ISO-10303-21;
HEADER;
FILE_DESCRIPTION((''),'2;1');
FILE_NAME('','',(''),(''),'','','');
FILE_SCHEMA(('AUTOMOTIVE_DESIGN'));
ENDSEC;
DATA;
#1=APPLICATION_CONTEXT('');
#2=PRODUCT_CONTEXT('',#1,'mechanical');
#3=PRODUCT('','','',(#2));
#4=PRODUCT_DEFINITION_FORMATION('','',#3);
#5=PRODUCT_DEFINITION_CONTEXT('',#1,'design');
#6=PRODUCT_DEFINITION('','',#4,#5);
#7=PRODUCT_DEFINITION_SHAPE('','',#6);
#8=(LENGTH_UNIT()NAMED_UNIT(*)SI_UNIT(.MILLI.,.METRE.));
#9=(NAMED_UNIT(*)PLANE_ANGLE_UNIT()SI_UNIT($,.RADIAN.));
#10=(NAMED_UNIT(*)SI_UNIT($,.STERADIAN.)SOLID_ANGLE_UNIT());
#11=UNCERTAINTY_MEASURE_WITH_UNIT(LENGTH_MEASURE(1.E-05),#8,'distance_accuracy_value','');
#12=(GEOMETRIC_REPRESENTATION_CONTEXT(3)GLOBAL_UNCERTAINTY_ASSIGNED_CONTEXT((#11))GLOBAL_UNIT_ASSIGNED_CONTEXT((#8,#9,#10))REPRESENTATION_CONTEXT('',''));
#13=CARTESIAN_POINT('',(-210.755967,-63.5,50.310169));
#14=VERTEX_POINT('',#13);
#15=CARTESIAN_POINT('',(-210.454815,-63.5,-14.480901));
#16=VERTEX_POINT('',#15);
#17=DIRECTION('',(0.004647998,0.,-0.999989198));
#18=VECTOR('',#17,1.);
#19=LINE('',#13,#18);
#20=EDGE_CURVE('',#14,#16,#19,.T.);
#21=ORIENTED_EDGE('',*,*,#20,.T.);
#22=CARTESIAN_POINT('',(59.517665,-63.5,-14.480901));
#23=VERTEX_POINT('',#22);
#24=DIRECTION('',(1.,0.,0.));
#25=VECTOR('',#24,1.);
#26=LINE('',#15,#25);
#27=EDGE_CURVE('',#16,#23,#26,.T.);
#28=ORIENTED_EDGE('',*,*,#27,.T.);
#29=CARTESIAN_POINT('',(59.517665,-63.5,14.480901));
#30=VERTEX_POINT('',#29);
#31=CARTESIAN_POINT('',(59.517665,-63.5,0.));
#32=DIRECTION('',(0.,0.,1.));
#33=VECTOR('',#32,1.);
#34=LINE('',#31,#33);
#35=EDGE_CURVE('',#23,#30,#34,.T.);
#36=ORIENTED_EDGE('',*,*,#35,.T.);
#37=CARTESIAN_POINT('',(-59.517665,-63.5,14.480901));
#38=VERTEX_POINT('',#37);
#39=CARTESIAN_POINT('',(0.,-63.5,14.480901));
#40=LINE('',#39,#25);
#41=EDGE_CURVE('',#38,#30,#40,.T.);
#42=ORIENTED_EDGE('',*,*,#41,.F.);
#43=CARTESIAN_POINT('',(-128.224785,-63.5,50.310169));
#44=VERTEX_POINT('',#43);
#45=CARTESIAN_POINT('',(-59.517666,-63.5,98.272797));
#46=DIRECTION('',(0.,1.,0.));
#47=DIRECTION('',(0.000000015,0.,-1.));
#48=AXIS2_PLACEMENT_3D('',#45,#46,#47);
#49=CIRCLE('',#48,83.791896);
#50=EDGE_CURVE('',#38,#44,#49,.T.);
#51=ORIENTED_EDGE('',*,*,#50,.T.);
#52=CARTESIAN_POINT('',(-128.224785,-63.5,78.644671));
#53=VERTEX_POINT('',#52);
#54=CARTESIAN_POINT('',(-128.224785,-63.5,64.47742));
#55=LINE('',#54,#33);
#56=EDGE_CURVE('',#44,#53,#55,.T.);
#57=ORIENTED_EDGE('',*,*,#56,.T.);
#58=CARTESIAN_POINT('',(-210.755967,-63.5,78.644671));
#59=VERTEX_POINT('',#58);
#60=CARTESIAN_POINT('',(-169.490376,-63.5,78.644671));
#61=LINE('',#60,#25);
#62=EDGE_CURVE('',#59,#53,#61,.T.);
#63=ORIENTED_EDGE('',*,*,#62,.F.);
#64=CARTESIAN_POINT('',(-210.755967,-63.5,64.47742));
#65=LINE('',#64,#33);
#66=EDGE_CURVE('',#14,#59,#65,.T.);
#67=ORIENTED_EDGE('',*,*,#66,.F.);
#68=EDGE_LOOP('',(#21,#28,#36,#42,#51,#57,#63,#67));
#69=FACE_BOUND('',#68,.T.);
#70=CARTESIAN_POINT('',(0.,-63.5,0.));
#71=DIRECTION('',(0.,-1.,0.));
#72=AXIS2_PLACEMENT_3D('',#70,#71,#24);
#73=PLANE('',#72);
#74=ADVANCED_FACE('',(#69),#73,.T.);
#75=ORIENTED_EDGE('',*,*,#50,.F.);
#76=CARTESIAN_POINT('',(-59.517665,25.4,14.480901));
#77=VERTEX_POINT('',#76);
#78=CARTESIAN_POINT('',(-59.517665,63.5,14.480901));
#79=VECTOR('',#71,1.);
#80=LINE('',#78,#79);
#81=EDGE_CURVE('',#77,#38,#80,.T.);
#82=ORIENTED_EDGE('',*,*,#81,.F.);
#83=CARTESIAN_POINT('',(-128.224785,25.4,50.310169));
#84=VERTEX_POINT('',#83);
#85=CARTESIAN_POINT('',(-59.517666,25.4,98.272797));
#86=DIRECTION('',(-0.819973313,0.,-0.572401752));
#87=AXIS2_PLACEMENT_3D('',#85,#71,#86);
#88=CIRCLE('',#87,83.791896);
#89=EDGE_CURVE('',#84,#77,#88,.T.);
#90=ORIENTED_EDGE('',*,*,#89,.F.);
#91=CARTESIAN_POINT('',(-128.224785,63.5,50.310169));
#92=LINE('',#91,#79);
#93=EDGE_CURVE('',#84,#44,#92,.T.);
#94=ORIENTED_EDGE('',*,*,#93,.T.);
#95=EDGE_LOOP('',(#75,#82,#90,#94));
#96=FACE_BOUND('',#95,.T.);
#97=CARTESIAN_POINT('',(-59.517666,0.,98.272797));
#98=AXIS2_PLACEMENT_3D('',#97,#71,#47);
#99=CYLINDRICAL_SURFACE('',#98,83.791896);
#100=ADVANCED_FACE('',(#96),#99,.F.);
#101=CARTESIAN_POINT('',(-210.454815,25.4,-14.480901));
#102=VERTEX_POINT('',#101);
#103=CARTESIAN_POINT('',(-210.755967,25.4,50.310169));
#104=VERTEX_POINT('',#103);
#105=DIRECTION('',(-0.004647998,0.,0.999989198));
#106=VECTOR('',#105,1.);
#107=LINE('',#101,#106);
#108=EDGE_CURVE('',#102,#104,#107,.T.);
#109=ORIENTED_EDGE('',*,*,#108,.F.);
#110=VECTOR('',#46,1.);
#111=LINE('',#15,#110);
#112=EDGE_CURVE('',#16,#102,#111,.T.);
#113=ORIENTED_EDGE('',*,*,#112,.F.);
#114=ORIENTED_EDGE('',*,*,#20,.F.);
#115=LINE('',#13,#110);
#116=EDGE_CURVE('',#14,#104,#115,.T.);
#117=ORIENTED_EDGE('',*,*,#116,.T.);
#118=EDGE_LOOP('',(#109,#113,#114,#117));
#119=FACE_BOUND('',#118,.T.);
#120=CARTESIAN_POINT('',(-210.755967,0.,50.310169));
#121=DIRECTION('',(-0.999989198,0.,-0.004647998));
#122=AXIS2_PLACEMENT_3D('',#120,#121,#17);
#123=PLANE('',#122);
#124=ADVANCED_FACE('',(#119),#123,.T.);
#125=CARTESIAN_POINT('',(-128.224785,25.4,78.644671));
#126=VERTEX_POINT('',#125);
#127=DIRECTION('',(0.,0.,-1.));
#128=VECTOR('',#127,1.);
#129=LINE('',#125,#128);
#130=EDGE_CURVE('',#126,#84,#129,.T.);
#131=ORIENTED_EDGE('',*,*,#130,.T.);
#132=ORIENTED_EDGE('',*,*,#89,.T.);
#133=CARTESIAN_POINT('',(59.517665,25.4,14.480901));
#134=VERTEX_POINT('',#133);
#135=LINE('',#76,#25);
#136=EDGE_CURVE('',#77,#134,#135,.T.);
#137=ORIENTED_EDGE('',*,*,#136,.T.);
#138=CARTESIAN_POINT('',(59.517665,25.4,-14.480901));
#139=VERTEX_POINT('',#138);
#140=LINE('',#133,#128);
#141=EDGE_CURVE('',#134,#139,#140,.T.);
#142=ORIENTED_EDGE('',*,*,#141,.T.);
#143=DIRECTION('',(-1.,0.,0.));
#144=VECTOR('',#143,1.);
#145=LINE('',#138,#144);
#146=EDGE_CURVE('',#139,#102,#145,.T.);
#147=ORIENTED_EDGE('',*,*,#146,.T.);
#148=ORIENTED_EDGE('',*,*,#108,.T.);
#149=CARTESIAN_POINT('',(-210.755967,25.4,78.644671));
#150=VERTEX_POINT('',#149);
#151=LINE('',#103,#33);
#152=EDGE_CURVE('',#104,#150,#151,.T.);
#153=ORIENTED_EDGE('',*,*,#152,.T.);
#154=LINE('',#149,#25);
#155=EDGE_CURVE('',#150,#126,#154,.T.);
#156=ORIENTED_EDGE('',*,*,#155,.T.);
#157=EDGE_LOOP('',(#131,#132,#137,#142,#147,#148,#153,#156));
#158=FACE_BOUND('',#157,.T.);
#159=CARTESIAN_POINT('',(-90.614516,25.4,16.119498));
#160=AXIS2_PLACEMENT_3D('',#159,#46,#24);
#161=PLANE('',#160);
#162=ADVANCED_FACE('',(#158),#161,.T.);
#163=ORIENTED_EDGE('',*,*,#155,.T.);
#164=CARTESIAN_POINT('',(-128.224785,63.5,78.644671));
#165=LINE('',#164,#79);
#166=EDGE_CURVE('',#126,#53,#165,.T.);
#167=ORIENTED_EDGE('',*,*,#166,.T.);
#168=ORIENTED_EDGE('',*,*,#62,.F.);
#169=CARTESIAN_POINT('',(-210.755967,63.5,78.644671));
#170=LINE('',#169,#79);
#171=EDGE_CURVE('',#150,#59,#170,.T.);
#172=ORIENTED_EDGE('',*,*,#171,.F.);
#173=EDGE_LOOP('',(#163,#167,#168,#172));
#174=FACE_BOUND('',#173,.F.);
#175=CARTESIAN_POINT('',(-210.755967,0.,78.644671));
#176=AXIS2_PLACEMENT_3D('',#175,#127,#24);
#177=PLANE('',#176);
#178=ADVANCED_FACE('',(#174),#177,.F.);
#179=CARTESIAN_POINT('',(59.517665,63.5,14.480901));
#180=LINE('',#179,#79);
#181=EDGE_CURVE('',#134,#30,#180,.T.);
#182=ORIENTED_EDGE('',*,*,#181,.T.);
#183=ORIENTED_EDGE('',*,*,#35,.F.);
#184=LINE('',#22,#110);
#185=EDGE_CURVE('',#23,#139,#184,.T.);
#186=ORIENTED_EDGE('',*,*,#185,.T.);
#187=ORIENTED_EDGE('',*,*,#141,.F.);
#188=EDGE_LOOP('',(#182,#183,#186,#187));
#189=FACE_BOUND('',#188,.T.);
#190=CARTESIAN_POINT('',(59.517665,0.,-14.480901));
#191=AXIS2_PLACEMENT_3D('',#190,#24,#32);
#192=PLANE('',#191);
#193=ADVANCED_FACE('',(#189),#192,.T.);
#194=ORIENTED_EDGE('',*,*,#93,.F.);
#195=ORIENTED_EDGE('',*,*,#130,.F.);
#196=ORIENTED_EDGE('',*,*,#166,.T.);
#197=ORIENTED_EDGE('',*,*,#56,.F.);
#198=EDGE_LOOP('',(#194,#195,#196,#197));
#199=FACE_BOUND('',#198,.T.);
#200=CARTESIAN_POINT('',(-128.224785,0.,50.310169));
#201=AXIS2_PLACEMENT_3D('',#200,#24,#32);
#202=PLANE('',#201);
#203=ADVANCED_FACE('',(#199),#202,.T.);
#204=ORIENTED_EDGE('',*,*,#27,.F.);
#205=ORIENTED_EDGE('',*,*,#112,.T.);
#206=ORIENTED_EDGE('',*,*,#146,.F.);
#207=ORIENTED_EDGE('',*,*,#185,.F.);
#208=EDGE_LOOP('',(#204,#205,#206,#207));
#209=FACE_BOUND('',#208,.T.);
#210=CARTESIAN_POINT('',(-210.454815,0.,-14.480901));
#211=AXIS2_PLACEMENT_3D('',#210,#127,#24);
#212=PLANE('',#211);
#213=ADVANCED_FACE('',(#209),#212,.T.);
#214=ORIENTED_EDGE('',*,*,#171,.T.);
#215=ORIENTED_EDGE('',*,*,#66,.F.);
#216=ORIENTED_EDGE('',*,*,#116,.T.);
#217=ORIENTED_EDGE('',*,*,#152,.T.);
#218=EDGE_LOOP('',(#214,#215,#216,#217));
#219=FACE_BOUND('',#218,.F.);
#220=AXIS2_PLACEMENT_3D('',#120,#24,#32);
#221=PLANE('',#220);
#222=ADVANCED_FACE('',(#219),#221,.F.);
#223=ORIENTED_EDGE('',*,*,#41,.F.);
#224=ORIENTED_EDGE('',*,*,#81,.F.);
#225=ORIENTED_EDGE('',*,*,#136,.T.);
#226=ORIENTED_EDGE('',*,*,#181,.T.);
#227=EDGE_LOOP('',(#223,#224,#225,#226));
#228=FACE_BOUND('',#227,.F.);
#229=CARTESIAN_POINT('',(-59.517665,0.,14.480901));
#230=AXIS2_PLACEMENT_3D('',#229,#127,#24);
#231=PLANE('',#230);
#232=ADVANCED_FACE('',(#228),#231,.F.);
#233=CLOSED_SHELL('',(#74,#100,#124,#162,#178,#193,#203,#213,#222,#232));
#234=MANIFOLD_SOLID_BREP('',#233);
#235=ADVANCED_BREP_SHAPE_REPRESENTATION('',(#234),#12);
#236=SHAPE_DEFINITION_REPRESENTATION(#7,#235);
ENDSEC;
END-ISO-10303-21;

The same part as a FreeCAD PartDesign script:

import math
import FreeCAD as App
import Part
import Sketcher
from FreeCAD import Vector
Q = App.Units.Quantity

doc = App.newDocument("Part")
body = doc.addObject("PartDesign::Body", "Body")

# Sketch on XZ plane
sketch1 = doc.addObject("Sketcher::SketchObject", "Sketch")
body.addObject(sketch1)
sketch1.AttachmentSupport = (doc.XZ_Plane, [""])
sketch1.MapMode = "FlatFace"
sketch1.addGeometry(Part.LineSegment(Vector(60, -14, 0), Vector(60, 14, 0)), False)
sketch1.addGeometry(Part.LineSegment(Vector(60, 14, 0), Vector(-60, 14, 0)), False)
sketch1.addGeometry(Part.ArcOfCircle(Part.Circle(Vector(-60, 98, 0), Vector(0, 0, 1), 84), math.radians(-145), math.radians(-90)), False)
sketch1.addGeometry(Part.LineSegment(Vector(-128, 50, 0), Vector(-128, 79, 0)), False)
sketch1.addGeometry(Part.LineSegment(Vector(-128, 79, 0), Vector(-211, 79, 0)), False)
sketch1.addGeometry(Part.LineSegment(Vector(-211, 79, 0), Vector(-211, 50, 0)), False)
sketch1.addGeometry(Part.LineSegment(Vector(-211, 50, 0), Vector(-210, -14, 0)), False)
sketch1.addGeometry(Part.LineSegment(Vector(-210, -14, 0), Vector(60, -14, 0)), False)
sketch1.addConstraint(Sketcher.Constraint("Coincident", 0, 2, 1, 1))
sketch1.addConstraint(Sketcher.Constraint("Tangent", 1, 2, 2, 2))
sketch1.addConstraint(Sketcher.Constraint("Coincident", 2, 1, 3, 1))
sketch1.addConstraint(Sketcher.Constraint("Coincident", 3, 2, 4, 1))
sketch1.addConstraint(Sketcher.Constraint("Coincident", 4, 2, 5, 1))
sketch1.addConstraint(Sketcher.Constraint("Coincident", 5, 2, 6, 1))
sketch1.addConstraint(Sketcher.Constraint("Coincident", 6, 2, 7, 1))
sketch1.addConstraint(Sketcher.Constraint("Coincident", 7, 2, 0, 1))
sketch1.addConstraint(Sketcher.Constraint("Vertical", 0))
sketch1.addConstraint(Sketcher.Constraint("Horizontal", 1))
sketch1.addConstraint(Sketcher.Constraint("Vertical", 3))
sketch1.addConstraint(Sketcher.Constraint("Horizontal", 4))
sketch1.addConstraint(Sketcher.Constraint("Vertical", 5))
sketch1.addConstraint(Sketcher.Constraint("Horizontal", 7))
sketch1.addConstraint(Sketcher.Constraint("Symmetric", 1, 2, 7, 2, -1, 1))
sketch1.addConstraint(Sketcher.Constraint("Horizontal", 2, 1, 5, 2))
sketch1.addConstraint(Sketcher.Constraint("DistanceY", 0, 1, 0, 2, 28.961802))
sketch1.addConstraint(Sketcher.Constraint("Radius", 2, 83.791896))
sketch1.addConstraint(Sketcher.Constraint("DistanceX", 1, 2, 1, 1, 119.03533))
sketch1.addConstraint(Sketcher.Constraint("DistanceX", 4, 2, 4, 1, 82.531182))
sketch1.addConstraint(Sketcher.Constraint("DistanceX", 7, 1, 7, 2, 269.97248))
sketch1.addConstraint(Sketcher.Constraint("DistanceX", 4, 2, 2, 3, 151.238301))
sketch1.addConstraint(Sketcher.Constraint("DistanceY", 3, 1, 3, 2, 28.334502))
pad1 = doc.addObject("PartDesign::Pad", "Pad")
body.addObject(pad1)
pad1.Profile = sketch1
pad1.Length = Q("5 in")
pad1.Midplane = True

# Sketch on XZ plane
sketch2 = doc.addObject("Sketcher::SketchObject", "Sketch001")
body.addObject(sketch2)
sketch2.AttachmentSupport = (doc.XZ_Plane, [""])
sketch2.MapMode = "FlatFace"
sketch2.AttachmentOffset = App.Placement(Vector(0, 0, -2.5 * 25.4), App.Rotation())
sketch2.addGeometry(Part.LineSegment(Vector(60, 14, 0), Vector(60, -14, 0)), False)
sketch2.addGeometry(Part.LineSegment(Vector(60, -14, 0), Vector(-210, -14, 0)), False)
sketch2.addGeometry(Part.LineSegment(Vector(-210, -14, 0), Vector(-211, 50, 0)), False)
sketch2.addGeometry(Part.LineSegment(Vector(-211, 50, 0), Vector(-211, 79, 0)), False)
sketch2.addGeometry(Part.LineSegment(Vector(-211, 79, 0), Vector(-128, 79, 0)), False)
sketch2.addGeometry(Part.LineSegment(Vector(-128, 79, 0), Vector(-128, 50, 0)), False)
sketch2.addGeometry(Part.ArcOfCircle(Part.Circle(Vector(-60, 98, 0), Vector(0, 0, 1), 84), math.radians(-145), math.radians(-90)), False)
sketch2.addGeometry(Part.LineSegment(Vector(-60, 14, 0), Vector(60, 14, 0)), False)
sketch2.addConstraint(Sketcher.Constraint("Coincident", 0, 2, 1, 1))
sketch2.addConstraint(Sketcher.Constraint("Coincident", 1, 2, 2, 1))
sketch2.addConstraint(Sketcher.Constraint("Coincident", 2, 2, 3, 1))
sketch2.addConstraint(Sketcher.Constraint("Coincident", 3, 2, 4, 1))
sketch2.addConstraint(Sketcher.Constraint("Coincident", 4, 2, 5, 1))
sketch2.addConstraint(Sketcher.Constraint("Coincident", 5, 2, 6, 1))
sketch2.addConstraint(Sketcher.Constraint("Tangent", 6, 2, 7, 1))
sketch2.addConstraint(Sketcher.Constraint("Coincident", 7, 2, 0, 1))
sketch2.addConstraint(Sketcher.Constraint("Vertical", 0))
sketch2.addConstraint(Sketcher.Constraint("Horizontal", 1))
sketch2.addConstraint(Sketcher.Constraint("Vertical", 3))
sketch2.addConstraint(Sketcher.Constraint("Horizontal", 4))
sketch2.addConstraint(Sketcher.Constraint("Vertical", 5))
sketch2.addConstraint(Sketcher.Constraint("Horizontal", 7))
sketch2.addConstraint(Sketcher.Constraint("Symmetric", 0, 2, 6, 2, -1, 1))
sketch2.addConstraint(Sketcher.Constraint("Horizontal", 2, 2, 5, 2))
sketch2.addConstraint(Sketcher.Constraint("DistanceY", 0, 2, 0, 1, 28.961802))
sketch2.addConstraint(Sketcher.Constraint("Radius", 6, 83.791896))
sketch2.addConstraint(Sketcher.Constraint("DistanceX", 1, 2, 1, 1, 269.97248))
sketch2.addConstraint(Sketcher.Constraint("DistanceX", 4, 1, 4, 2, 82.531182))
sketch2.addConstraint(Sketcher.Constraint("DistanceX", 7, 1, 7, 2, 119.03533))
sketch2.addConstraint(Sketcher.Constraint("DistanceX", 2, 2, 6, 3, 151.238301))
sketch2.addConstraint(Sketcher.Constraint("DistanceY", 3, 1, 3, 2, 28.334502))
pocket1 = doc.addObject("PartDesign::Pocket", "Pocket")
body.addObject(pocket1)
pocket1.Profile = sketch2
pocket1.Length = Q("1.5 in")
pocket1.Reversed = True

doc.recompute()
